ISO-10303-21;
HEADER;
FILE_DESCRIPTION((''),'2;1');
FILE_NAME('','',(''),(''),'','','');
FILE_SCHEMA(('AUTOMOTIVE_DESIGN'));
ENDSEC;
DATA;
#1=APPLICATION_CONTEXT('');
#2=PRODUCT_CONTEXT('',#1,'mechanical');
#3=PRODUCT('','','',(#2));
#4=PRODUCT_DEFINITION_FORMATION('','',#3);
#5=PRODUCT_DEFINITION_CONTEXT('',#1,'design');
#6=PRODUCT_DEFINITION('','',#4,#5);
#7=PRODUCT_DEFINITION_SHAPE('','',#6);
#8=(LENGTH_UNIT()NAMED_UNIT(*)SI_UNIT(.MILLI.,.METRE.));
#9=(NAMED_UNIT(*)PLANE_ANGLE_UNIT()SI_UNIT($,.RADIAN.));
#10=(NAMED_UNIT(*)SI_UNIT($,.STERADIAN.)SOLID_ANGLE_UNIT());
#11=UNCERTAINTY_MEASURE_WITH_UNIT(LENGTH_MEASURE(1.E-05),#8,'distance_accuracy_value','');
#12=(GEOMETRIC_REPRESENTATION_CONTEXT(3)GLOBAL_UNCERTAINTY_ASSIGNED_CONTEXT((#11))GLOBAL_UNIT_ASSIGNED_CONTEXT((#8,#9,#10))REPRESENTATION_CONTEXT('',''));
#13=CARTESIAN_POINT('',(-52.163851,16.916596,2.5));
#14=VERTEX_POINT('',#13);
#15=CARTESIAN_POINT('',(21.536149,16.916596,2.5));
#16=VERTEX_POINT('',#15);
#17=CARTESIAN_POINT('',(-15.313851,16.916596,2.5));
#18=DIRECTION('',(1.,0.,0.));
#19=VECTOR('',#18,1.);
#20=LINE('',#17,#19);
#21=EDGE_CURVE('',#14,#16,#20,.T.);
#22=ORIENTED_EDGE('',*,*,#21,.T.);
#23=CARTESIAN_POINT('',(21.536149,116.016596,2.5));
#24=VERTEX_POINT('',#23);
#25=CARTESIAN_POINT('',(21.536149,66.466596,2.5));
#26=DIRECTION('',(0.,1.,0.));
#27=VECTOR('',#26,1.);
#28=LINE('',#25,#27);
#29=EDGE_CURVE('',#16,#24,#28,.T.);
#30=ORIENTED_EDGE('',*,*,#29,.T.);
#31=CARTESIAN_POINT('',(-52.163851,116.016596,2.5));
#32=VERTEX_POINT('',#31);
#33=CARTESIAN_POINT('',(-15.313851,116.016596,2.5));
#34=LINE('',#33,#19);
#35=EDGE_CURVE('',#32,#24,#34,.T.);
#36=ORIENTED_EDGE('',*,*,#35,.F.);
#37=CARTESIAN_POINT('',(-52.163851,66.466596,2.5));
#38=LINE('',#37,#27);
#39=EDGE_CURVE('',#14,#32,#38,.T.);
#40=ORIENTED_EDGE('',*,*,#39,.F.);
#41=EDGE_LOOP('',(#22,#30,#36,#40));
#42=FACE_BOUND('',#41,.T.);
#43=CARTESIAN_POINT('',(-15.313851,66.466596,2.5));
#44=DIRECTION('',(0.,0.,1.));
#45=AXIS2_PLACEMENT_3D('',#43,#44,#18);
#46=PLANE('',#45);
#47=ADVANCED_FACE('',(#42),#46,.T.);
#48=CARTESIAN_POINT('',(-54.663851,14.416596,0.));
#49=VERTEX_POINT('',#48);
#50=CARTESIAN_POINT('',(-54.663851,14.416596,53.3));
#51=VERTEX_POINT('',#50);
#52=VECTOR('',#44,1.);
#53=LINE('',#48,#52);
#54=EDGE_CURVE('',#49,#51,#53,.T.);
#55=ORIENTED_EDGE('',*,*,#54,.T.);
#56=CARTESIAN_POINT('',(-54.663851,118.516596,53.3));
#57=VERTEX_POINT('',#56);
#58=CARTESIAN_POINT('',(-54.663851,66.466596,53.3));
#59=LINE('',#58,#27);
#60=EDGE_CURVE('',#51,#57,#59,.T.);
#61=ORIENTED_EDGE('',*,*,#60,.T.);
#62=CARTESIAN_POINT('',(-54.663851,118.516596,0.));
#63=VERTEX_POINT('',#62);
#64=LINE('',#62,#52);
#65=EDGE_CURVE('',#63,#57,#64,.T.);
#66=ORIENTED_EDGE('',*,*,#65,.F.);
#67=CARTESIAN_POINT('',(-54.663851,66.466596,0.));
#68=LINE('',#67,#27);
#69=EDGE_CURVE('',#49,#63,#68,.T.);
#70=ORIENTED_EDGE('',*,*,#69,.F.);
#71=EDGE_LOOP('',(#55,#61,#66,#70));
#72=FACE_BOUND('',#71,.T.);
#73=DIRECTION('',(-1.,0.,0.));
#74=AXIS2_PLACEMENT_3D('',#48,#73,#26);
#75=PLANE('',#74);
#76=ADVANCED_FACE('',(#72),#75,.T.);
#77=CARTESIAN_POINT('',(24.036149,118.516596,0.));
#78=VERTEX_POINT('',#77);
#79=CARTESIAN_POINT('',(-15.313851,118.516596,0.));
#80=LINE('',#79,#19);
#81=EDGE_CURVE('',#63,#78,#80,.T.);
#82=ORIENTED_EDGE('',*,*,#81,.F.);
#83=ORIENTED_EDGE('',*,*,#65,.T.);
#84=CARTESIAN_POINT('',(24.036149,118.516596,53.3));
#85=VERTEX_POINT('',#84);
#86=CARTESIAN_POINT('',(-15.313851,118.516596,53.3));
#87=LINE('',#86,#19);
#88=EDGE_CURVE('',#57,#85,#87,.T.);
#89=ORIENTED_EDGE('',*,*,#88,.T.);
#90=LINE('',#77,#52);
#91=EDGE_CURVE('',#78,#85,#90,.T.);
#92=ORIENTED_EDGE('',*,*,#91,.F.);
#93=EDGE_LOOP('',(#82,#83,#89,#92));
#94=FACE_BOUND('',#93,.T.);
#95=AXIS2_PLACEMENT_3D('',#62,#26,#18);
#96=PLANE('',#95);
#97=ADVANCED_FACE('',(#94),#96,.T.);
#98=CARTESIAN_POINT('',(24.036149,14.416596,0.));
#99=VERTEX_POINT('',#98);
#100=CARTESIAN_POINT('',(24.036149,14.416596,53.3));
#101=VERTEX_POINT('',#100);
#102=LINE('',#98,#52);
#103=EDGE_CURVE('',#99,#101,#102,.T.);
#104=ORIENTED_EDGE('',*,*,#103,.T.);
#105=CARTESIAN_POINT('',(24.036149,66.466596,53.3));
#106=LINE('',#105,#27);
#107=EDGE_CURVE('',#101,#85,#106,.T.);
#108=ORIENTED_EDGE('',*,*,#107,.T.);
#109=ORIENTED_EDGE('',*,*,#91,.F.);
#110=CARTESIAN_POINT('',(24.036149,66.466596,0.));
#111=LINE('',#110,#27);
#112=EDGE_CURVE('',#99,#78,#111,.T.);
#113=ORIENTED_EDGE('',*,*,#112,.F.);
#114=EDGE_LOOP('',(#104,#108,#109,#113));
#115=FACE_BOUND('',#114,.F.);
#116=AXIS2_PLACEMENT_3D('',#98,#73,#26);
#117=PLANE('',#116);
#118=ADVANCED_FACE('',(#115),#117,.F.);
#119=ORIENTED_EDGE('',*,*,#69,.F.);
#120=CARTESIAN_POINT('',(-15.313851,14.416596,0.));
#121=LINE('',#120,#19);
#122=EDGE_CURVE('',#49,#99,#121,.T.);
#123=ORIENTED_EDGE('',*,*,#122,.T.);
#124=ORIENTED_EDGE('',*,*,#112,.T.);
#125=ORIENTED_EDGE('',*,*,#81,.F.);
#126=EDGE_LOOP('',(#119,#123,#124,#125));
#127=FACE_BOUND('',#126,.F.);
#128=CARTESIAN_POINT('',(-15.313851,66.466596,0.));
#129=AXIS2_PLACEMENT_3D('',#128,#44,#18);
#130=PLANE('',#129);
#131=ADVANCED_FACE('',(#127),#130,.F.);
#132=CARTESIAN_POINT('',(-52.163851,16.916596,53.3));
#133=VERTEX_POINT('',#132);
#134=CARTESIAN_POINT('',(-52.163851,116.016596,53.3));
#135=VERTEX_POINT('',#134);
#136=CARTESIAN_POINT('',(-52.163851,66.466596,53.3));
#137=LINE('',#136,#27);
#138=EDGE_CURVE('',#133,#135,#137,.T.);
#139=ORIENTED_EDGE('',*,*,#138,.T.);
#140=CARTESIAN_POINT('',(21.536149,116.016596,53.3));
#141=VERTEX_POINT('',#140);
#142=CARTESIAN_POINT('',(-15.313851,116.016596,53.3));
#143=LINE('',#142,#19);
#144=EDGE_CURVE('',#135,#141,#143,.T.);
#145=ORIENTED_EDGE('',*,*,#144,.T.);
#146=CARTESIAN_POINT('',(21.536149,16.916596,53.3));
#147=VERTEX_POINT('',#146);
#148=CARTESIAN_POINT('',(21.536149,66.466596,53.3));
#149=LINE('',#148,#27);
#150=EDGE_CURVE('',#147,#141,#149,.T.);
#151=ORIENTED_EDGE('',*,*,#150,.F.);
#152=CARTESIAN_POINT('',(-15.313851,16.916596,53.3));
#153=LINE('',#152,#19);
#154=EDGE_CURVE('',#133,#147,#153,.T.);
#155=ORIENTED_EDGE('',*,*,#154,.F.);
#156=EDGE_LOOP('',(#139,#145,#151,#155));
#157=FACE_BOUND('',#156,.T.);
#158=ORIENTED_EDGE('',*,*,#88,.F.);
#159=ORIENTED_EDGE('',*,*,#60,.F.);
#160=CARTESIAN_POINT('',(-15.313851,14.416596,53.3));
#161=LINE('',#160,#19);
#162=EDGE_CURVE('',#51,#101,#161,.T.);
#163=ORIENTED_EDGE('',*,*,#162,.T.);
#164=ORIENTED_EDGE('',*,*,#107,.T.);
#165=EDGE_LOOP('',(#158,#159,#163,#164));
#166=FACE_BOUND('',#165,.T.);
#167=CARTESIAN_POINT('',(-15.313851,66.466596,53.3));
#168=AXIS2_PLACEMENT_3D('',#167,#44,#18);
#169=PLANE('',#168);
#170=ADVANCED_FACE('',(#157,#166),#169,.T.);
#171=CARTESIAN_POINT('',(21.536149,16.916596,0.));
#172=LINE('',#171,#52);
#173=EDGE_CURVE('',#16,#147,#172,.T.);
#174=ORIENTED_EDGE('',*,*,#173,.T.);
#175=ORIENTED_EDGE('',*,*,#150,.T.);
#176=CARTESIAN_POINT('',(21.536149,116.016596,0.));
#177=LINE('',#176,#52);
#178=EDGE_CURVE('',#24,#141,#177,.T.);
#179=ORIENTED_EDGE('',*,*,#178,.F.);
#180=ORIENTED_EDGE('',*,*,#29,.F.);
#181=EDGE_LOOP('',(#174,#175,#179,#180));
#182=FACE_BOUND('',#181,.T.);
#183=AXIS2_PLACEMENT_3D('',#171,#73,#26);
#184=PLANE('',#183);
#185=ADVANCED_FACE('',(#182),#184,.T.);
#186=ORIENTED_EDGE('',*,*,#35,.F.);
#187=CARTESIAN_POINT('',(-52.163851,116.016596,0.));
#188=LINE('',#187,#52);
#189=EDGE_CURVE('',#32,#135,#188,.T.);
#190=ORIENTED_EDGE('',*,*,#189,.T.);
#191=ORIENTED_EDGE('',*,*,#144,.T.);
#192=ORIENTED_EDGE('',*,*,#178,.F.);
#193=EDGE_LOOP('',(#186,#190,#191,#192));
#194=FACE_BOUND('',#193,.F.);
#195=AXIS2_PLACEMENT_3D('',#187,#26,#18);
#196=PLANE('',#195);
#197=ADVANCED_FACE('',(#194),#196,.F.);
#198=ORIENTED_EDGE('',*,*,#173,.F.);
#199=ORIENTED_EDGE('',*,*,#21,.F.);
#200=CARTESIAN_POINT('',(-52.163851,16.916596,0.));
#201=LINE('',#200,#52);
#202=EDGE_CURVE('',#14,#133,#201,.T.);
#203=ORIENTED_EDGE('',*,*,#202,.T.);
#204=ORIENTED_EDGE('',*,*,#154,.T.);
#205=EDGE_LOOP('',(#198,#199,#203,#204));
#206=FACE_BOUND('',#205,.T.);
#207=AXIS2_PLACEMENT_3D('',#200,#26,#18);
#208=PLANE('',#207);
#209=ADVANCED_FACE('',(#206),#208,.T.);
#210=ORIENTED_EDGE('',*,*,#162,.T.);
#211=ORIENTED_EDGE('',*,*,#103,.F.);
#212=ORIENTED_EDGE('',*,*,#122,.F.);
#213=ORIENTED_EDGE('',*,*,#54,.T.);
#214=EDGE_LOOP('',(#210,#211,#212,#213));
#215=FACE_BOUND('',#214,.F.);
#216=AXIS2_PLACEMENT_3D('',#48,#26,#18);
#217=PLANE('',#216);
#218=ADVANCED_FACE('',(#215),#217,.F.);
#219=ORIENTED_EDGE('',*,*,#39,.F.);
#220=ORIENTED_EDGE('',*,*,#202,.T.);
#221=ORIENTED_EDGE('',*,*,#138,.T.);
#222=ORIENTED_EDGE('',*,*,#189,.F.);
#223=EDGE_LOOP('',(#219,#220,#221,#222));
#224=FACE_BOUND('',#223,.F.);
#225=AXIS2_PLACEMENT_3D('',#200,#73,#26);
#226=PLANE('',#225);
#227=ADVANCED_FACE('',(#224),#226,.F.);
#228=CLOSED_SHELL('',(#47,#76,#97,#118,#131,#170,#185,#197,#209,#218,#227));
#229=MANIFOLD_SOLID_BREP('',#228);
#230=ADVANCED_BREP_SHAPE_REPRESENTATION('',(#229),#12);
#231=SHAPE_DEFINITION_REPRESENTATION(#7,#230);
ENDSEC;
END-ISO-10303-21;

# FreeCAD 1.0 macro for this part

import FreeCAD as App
import Part
import Sketcher


def add_polygon(sketch, points):
    """Adds a closed chain of lines whose ends are joined by coincident constraints."""
    first, n = sketch.GeometryCount, len(points)
    for a, b in zip(points, points[1:] + points[:1]):
        sketch.addGeometry(Part.LineSegment(App.Vector(*a, 0), App.Vector(*b, 0)), False)
    for i in range(n):
        sketch.addConstraint(Sketcher.Constraint("Coincident", first + i, 2, first + (i + 1) % n, 1))

doc = App.newDocument("Part")
body = doc.addObject("PartDesign::Body", "Body")

# Sketch on XY plane
sketch1 = body.newObject("Sketcher::SketchObject", "Sketch")
sketch1.AttachmentSupport = (doc.getObject("XY_Plane"), [""])
sketch1.MapMode = "FlatFace"
add_polygon(sketch1, [(-52, 116), (-52, 17), (22, 17), (22, 116)])  # lines 0-3
sketch1.addConstraint([
    Sketcher.Constraint("Vertical", 0),
    Sketcher.Constraint("Horizontal", 1),
    Sketcher.Constraint("Vertical", 2),
    Sketcher.Constraint("Horizontal", 3),
    Sketcher.Constraint("DistanceX", 1, 1, 1, 2, 73.7),
    Sketcher.Constraint("DistanceY", 0, 2, 0, 1, 99.1),
    Sketcher.Constraint("DistanceX", 0, 2, -1, 1, 52.163851),
    Sketcher.Constraint("DistanceY", -1, 1, 0, 2, 16.916596),
])
pad1 = body.newObject("PartDesign::Pad", "Pad")
pad1.Profile = sketch1
pad1.Length = 2.5

# Sketch on XY plane
sketch2 = body.newObject("Sketcher::SketchObject", "Sketch001")
sketch2.AttachmentSupport = (doc.getObject("XY_Plane"), [""])
sketch2.MapMode = "FlatFace"
add_polygon(sketch2, [(-55, 119), (-55, 14), (24, 14), (24, 119)])  # lines 0-3
add_polygon(sketch2, [(22, 17), (-52, 17), (-52, 116), (22, 116)])  # lines 4-7
sketch2.addConstraint([
    Sketcher.Constraint("Vertical", 0),
    Sketcher.Constraint("Horizontal", 1),
    Sketcher.Constraint("Vertical", 2),
    Sketcher.Constraint("Horizontal", 3),
    Sketcher.Constraint("Horizontal", 4),
    Sketcher.Constraint("Vertical", 5),
    Sketcher.Constraint("Horizontal", 6),
    Sketcher.Constraint("Vertical", 7),
    Sketcher.Constraint("DistanceX", 1, 1, 1, 2, 78.7),
    Sketcher.Constraint("DistanceX", 4, 2, 4, 1, 73.7),
    Sketcher.Constraint("DistanceY", 0, 2, 0, 1, 104.1),
    Sketcher.Constraint("DistanceY", 5, 1, 5, 2, 99.1),
    Sketcher.Constraint("DistanceX", 0, 2, 4, 2, 2.5),
    Sketcher.Constraint("DistanceY", 0, 2, 4, 2, 2.5),
    Sketcher.Constraint("DistanceX", 0, 2, -1, 1, 54.663851),
    Sketcher.Constraint("DistanceY", -1, 1, 0, 2, 14.416596),
])
pad2 = body.newObject("PartDesign::Pad", "Pad001")
pad2.Profile = sketch2
pad2.Length = 53.3

doc.recompute()
